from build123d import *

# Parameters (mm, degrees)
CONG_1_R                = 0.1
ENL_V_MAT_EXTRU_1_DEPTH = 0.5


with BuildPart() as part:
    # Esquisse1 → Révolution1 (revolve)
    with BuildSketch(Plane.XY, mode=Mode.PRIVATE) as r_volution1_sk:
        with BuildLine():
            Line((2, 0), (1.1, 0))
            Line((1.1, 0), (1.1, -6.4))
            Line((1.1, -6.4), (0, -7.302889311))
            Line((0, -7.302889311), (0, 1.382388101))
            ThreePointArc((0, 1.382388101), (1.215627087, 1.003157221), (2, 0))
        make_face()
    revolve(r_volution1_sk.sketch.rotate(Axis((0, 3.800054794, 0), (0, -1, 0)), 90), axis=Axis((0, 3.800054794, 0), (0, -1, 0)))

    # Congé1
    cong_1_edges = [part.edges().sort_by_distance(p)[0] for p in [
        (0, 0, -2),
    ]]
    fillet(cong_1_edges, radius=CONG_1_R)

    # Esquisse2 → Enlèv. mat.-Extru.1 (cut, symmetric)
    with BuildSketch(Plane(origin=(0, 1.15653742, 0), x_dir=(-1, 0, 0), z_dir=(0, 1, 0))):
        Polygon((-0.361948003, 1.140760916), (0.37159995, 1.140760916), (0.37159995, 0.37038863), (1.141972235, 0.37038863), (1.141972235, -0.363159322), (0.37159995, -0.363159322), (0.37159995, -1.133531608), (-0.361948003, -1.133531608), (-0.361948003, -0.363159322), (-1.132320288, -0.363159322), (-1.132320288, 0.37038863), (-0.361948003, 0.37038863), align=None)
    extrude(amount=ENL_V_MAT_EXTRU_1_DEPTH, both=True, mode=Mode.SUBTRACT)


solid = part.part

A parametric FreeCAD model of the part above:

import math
import FreeCAD as App
import Part
import Sketcher

V = App.Vector
Q = App.Units.Quantity


def edges_at(feature, points):
    """Names of the edges that pass closest to the given points."""
    edges = feature.Shape.Edges
    near = lambda p: min(range(len(edges)), key=lambda i: edges[i].distToShape(Part.Vertex(*p))[0])
    return sorted({f"Edge{near(p) + 1}" for p in points})


def add_polygon(sketch, points):
    """Adds a closed chain of lines whose ends are joined by coincident constraints."""
    first, n = sketch.GeometryCount, len(points)
    for a, b in zip(points, points[1:] + points[:1]):
        sketch.addGeometry(Part.LineSegment(App.Vector(*a, 0), App.Vector(*b, 0)), False)
    for i in range(n):
        sketch.addConstraint(Sketcher.Constraint("Coincident", first + i, 2, first + (i + 1) % n, 1))

doc = App.newDocument("Part")
body = doc.addObject("PartDesign::Body", "Body")

sketch1 = doc.addObject("Sketcher::SketchObject", "Sketch")
body.addObject(sketch1)
sketch1.AttachmentSupport = (doc.XY_Plane, [""])
sketch1.MapMode = "FlatFace"
sketch1.addGeometry(Part.LineSegment(V(1.1, 0, 0), V(2, 0, 0)), False)
sketch1.addGeometry(Part.ArcOfCircle(Part.Circle(V(0, -0.755578, 0), V(0, 0, 1), 2.137966), math.radians(20.696005), math.radians(90)), False)
sketch1.addGeometry(Part.LineSegment(V(0, 1.382388, 0), V(0, -7.302889, 0)), False)
sketch1.addGeometry(Part.LineSegment(V(0, -7.302889, 0), V(1.1, -6.4, 0)), False)
sketch1.addGeometry(Part.LineSegment(V(1.1, -6.4, 0), V(1.1, 0, 0)), False)
sketch1.addConstraint(Sketcher.Constraint("Coincident", 0, 2, 1, 1))
sketch1.addConstraint(Sketcher.Constraint("Coincident", 1, 2, 2, 1))
sketch1.addConstraint(Sketcher.Constraint("Coincident", 2, 2, 3, 1))
sketch1.addConstraint(Sketcher.Constraint("Coincident", 3, 2, 4, 1))
sketch1.addConstraint(Sketcher.Constraint("Coincident", 4, 2, 0, 1))
sketch1.addConstraint(Sketcher.Constraint("Horizontal", 0))
sketch1.addConstraint(Sketcher.Constraint("Vertical", 2))
sketch1.addConstraint(Sketcher.Constraint("Vertical", 4))
sketch1.addConstraint(Sketcher.Constraint("PointOnObject", 1, 3, -2))
sketch1.addConstraint(Sketcher.Constraint("PointOnObject", 0, 2, -1))
sketch1.addConstraint(Sketcher.Constraint("PointOnObject", 1, 2, -2))
sketch1.addConstraint(Sketcher.Constraint("DistanceX", 0, 1, 0, 2, Q("0.9 mm")))
sketch1.addConstraint(Sketcher.Constraint("DistanceY", 4, 1, 4, 2, Q("6.4 mm")))
sketch1.addConstraint(Sketcher.Constraint("DistanceX", -1, 1, 0, 2, Q("2 mm")))
sketch1.addConstraint(Sketcher.Constraint("Radius", 1, Q("2.137966 mm")))
sketch1.addConstraint(Sketcher.Constraint("Distance", 3, Q("1.423098 mm")))
revolution = doc.addObject("PartDesign::Revolution", "Revolution")
body.addObject(revolution)
revolution.Profile = sketch1
revolution.ReferenceAxis = (sketch1, ["V_Axis"])
revolution.Angle = 360
doc.recompute()

fillet = doc.addObject("PartDesign::Fillet", "Fillet")
body.addObject(fillet)
fillet.Base = (revolution, edges_at(revolution, [(0, 0, -2)]))
fillet.Radius = 0.1

sketch2 = doc.addObject("Sketcher::SketchObject", "Sketch001")
body.addObject(sketch2)
sketch2.AttachmentSupport = (doc.XZ_Plane, [""])
sketch2.MapMode = "FlatFace"
sketch2.AttachmentOffset = App.Placement(V(0, 0, -1.156537), App.Rotation())
add_polygon(sketch2, [(-0.3716, 1.140761), (0.361948, 1.140761), (0.361948, 0.370389), (1.13232, 0.370389), (1.13232, -0.363159), (0.361948, -0.363159), (0.361948, -1.133532), (-0.3716, -1.133532), (-0.3716, -0.363159), (-1.141972, -0.363159), (-1.141972, 0.370389), (-0.3716, 0.370389)])
sketch2.addConstraint(Sketcher.Constraint("Horizontal", 0))
sketch2.addConstraint(Sketcher.Constraint("Vertical", 1))
sketch2.addConstraint(Sketcher.Constraint("Horizontal", 2))
sketch2.addConstraint(Sketcher.Constraint("Vertical", 3))
sketch2.addConstraint(Sketcher.Constraint("Horizontal", 4))
sketch2.addConstraint(Sketcher.Constraint("Vertical", 5))
sketch2.addConstraint(Sketcher.Constraint("Horizontal", 6))
sketch2.addConstraint(Sketcher.Constraint("Vertical", 7))
sketch2.addConstraint(Sketcher.Constraint("Horizontal", 8))
sketch2.addConstraint(Sketcher.Constraint("Vertical", 9))
sketch2.addConstraint(Sketcher.Constraint("Horizontal", 10))
sketch2.addConstraint(Sketcher.Constraint("Vertical", 11))
sketch2.addConstraint(Sketcher.Constraint("Horizontal", 4, 2, 7, 2))
sketch2.addConstraint(Sketcher.Constraint("Horizontal", 2, 2, 9, 2))
sketch2.addConstraint(Sketcher.Constraint("Vertical", 1, 2, 4, 2))
sketch2.addConstraint(Sketcher.Constraint("Vertical", 7, 2, 10, 2))
sketch2.addConstraint(Sketcher.Constraint("Equal", 4, 8))
sketch2.addConstraint(Sketcher.Constraint("Equal", 10, 1))
sketch2.addConstraint(Sketcher.Constraint("Equal", 6, 3))
sketch2.addConstraint(Sketcher.Constraint("Equal", 1, 5))
sketch2.addConstraint(Sketcher.Constraint("DistanceX", 6, 2, -1, 1, Q("0.3716 mm")))
sketch2.addConstraint(Sketcher.Constraint("DistanceX", 0, 1, 0, 2, Q("0.733548 mm")))
sketch2.addConstraint(Sketcher.Constraint("DistanceX", 2, 1, 2, 2, Q("0.770372 mm")))
sketch2.addConstraint(Sketcher.Constraint("DistanceY", -1, 1, 0, 2, Q("1.140761 mm")))
pocket1 = doc.addObject("PartDesign::Pocket", "Pocket")
body.addObject(pocket1)
pocket1.Profile = sketch2
pocket1.Length = 1
pocket1.Midplane = True

doc.recompute()
